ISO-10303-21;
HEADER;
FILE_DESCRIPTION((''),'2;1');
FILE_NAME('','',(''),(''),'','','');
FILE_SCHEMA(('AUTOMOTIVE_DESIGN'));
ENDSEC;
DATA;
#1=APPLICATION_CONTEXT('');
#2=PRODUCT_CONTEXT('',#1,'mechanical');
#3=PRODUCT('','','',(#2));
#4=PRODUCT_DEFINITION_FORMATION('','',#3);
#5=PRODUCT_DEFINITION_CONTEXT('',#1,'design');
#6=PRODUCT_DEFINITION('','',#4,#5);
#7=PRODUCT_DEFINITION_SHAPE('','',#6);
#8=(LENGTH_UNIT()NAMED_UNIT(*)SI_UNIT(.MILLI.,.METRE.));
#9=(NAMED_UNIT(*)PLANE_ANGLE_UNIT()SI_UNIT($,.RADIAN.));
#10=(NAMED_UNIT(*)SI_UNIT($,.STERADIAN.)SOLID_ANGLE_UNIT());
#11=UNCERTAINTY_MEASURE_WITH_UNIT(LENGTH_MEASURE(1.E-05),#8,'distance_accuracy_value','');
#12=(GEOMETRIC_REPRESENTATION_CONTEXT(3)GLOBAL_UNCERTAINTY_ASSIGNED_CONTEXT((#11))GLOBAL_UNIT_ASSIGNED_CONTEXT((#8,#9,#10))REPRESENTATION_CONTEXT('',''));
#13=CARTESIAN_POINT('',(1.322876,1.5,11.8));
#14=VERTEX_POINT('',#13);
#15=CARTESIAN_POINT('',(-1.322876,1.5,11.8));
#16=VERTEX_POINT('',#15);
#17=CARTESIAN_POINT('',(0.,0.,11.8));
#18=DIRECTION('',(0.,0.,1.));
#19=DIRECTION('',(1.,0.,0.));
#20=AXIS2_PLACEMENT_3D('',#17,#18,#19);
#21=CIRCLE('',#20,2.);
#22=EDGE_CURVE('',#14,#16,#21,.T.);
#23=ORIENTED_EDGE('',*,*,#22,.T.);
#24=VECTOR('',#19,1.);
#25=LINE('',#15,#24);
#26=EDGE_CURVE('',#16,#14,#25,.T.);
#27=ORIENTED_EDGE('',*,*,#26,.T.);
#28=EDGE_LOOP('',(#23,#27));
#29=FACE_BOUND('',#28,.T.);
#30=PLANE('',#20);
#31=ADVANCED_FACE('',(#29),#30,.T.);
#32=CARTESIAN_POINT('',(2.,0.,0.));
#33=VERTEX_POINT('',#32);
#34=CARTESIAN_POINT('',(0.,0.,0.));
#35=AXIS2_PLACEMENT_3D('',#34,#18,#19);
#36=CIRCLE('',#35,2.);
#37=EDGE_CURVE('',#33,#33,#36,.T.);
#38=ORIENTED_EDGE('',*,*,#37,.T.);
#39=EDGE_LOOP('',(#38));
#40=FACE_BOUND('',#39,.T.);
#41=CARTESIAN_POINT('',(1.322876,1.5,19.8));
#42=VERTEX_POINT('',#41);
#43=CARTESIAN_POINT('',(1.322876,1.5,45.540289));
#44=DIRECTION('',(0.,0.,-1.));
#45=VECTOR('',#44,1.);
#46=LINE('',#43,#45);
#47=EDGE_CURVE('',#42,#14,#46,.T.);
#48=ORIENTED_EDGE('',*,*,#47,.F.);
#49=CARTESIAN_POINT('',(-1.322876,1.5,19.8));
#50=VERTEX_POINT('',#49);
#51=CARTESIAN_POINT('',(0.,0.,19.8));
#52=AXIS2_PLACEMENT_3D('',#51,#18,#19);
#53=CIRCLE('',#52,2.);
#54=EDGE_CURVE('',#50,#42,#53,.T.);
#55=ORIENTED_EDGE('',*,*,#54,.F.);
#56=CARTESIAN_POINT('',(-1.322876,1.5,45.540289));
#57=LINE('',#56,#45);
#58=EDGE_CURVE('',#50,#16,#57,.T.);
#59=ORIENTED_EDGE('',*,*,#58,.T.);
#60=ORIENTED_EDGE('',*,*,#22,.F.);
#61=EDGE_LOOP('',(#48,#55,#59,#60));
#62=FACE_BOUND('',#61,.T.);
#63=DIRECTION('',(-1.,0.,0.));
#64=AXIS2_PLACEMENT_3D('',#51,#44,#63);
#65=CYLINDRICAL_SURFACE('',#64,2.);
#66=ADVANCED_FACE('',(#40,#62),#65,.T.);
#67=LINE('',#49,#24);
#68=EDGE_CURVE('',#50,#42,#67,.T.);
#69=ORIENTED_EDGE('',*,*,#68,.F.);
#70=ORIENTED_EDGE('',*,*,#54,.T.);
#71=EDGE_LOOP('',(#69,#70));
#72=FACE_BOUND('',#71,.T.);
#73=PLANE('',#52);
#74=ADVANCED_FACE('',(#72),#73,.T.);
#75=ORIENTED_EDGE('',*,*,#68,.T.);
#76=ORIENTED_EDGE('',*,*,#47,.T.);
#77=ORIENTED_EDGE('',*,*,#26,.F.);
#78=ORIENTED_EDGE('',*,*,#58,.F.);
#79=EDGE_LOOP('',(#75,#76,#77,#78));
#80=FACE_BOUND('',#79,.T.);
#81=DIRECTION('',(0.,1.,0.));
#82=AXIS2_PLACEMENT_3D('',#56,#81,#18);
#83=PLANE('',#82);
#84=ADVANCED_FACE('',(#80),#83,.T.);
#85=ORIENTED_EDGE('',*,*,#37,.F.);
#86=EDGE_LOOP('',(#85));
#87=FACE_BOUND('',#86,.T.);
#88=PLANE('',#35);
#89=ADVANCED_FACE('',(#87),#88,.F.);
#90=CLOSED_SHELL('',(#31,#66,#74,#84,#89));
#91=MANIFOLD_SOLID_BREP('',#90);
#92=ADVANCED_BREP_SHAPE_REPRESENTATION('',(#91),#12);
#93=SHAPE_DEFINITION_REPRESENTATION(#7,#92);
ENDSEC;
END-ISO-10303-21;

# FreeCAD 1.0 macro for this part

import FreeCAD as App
import Part
import Sketcher
Q = App.Units.Quantity


def add_polygon(sketch, points):
    """Adds a closed chain of lines whose ends are joined by coincident constraints."""
    first, n = sketch.GeometryCount, len(points)
    for a, b in zip(points, points[1:] + points[:1]):
        sketch.addGeometry(Part.LineSegment(App.Vector(*a, 0), App.Vector(*b, 0)), False)
    for i in range(n):
        sketch.addConstraint(Sketcher.Constraint("Coincident", first + i, 2, first + (i + 1) % n, 1))

doc = App.newDocument("Part")
body = doc.addObject("PartDesign::Body", "Body")

# Sketch on XY plane
sketch1 = body.newObject("Sketcher::SketchObject", "Sketch")
sketch1.AttachmentSupport = (doc.getObject("XY_Plane"), [""])
sketch1.MapMode = "FlatFace"
sketch1.addGeometry(Part.Circle(App.Vector(0, 0, 0), App.Vector(0, 0, 1), 2), False)
sketch1.addConstraint([
    Sketcher.Constraint("Coincident", 0, 3, -1, 1),
    Sketcher.Constraint("Diameter", 0, Q("4 mm")),
])
pad1 = body.newObject("PartDesign::Pad", "Pad")
pad1.Profile = sketch1
pad1.Length = 19.8

# Sketch on XY plane
sketch2 = body.newObject("Sketcher::SketchObject", "Sketch001")
sketch2.AttachmentSupport = (doc.getObject("XY_Plane"), [""])
sketch2.MapMode = "FlatFace"
sketch2.AttachmentOffset = App.Placement(App.Vector(0, 0, 19.8), App.Rotation())
add_polygon(sketch2, [(-21, 2), (21, 2), (21, 41), (-21, 41)])  # lines 0-3
sketch2.addConstraint([
    Sketcher.Constraint("Horizontal", 0),
    Sketcher.Constraint("Vertical", 1),
    Sketcher.Constraint("Horizontal", 2),
    Sketcher.Constraint("Vertical", 3),
    Sketcher.Constraint("DistanceY", -1, 1, 0, 2, Q("1.5 mm")),
    Sketcher.Constraint("DistanceX", 0, 1, 0, 2, Q("41.95026 mm")),
    Sketcher.Constraint("DistanceY", 1, 1, 1, 2, Q("39.304508 mm")),
    Sketcher.Constraint("DistanceX", -1, 1, 0, 2, Q("20.97513 mm")),
])
pocket1 = body.newObject("PartDesign::Pocket", "Pocket")
pocket1.Profile = sketch2
pocket1.Type = "TwoLengths"
pocket1.Length = 1
pocket1.Length2 = 8
pocket1.Reversed = True

doc.recompute()
